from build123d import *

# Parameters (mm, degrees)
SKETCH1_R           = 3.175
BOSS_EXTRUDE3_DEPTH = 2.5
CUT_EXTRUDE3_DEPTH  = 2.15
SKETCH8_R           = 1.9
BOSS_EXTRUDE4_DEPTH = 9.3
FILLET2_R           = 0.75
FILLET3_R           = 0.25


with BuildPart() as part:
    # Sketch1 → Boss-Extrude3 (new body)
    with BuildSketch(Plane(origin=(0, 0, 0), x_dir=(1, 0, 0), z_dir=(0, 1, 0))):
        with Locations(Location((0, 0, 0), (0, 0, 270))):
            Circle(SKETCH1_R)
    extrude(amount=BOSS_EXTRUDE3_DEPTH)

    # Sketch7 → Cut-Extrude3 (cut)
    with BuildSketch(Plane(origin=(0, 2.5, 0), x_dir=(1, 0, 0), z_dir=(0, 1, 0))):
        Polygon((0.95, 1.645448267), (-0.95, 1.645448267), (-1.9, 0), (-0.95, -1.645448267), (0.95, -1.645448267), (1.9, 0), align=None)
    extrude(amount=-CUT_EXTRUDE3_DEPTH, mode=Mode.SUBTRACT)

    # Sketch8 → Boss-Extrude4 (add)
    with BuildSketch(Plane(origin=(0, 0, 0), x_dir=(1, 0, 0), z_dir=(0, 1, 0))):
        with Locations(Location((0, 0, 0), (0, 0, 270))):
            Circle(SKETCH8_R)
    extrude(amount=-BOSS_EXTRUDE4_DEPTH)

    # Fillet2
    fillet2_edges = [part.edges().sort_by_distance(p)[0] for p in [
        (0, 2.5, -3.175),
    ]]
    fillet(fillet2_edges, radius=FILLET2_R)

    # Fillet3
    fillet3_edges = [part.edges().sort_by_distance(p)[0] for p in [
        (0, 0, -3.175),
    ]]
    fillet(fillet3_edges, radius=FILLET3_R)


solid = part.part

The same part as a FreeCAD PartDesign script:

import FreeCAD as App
import Part
import Sketcher
Q = App.Units.Quantity


def edges_at(feature, points):
    """Names of the edges that pass closest to the given points."""
    edges = feature.Shape.Edges
    near = lambda p: min(range(len(edges)), key=lambda i: edges[i].distToShape(Part.Vertex(*p))[0])
    return sorted({f"Edge{near(p) + 1}" for p in points})

doc = App.newDocument("Part")
body = doc.addObject("PartDesign::Body", "Body")

sketch1 = body.newObject("Sketcher::SketchObject", "Sketch")
sketch1.AttachmentSupport = (doc.getObject("XZ_Plane"), [""])
sketch1.MapMode = "FlatFace"
sketch1.addGeometry(Part.Circle(App.Vector(0, 0, 0), App.Vector(0, 0, 1), 3.2), False)
sketch1.addConstraint(Sketcher.Constraint("Coincident", 0, 3, -1, 1))
sketch1.addConstraint(Sketcher.Constraint("Diameter", 0, Q("6.35 mm")))
pad1 = body.newObject("PartDesign::Pad", "Pad")
pad1.Profile = sketch1
pad1.Length = 2.5
pad1.Reversed = True

sketch2 = body.newObject("Sketcher::SketchObject", "Sketch001")
sketch2.AttachmentSupport = (doc.getObject("XZ_Plane"), [""])
sketch2.MapMode = "FlatFace"
sketch2.AttachmentOffset = App.Placement(App.Vector(0, 0, -2.5), App.Rotation())
sketch2.addGeometry(Part.LineSegment(App.Vector(0.9, -1.6, 0), App.Vector(-0.9, -1.6, 0)), False)
sketch2.addGeometry(Part.LineSegment(App.Vector(-0.9, -1.6, 0), App.Vector(-1.9, 0, 0)), False)
sketch2.addGeometry(Part.LineSegment(App.Vector(-1.9, 0, 0), App.Vector(-0.9, 1.6, 0)), False)
sketch2.addGeometry(Part.LineSegment(App.Vector(-0.9, 1.6, 0), App.Vector(0.9, 1.6, 0)), False)
sketch2.addGeometry(Part.LineSegment(App.Vector(0.9, 1.6, 0), App.Vector(1.9, 0, 0)), False)
sketch2.addGeometry(Part.LineSegment(App.Vector(1.9, 0, 0), App.Vector(0.9, -1.6, 0)), False)
sketch2.addConstraint(Sketcher.Constraint("Coincident", 0, 2, 1, 1))
sketch2.addConstraint(Sketcher.Constraint("Coincident", 1, 2, 2, 1))
sketch2.addConstraint(Sketcher.Constraint("Coincident", 2, 2, 3, 1))
sketch2.addConstraint(Sketcher.Constraint("Coincident", 3, 2, 4, 1))
sketch2.addConstraint(Sketcher.Constraint("Coincident", 4, 2, 5, 1))
sketch2.addConstraint(Sketcher.Constraint("Coincident", 5, 2, 0, 1))
sketch2.addConstraint(Sketcher.Constraint("Horizontal", 0))
sketch2.addConstraint(Sketcher.Constraint("Horizontal", 3))
sketch2.addConstraint(Sketcher.Constraint("Symmetric", 0, 2, 3, 2, -1, 1))
sketch2.addConstraint(Sketcher.Constraint("Symmetric", 1, 2, 4, 2, -1, 1))
sketch2.addConstraint(Sketcher.Constraint("PointOnObject", 1, 2, -1))
sketch2.addConstraint(Sketcher.Constraint("Parallel", 2, 5))
sketch2.addConstraint(Sketcher.Constraint("Vertical", 0, 2, 2, 2))
sketch2.addConstraint(Sketcher.Constraint("Angle", 1, Q("120 deg")))
sketch2.addConstraint(Sketcher.Constraint("DistanceX", 0, 2, 0, 1, Q("1.9 mm")))
sketch2.addConstraint(Sketcher.Constraint("Distance", 1, Q("1.9 mm")))
pocket1 = body.newObject("PartDesign::Pocket", "Pocket")
pocket1.Profile = sketch2
pocket1.Length = 2.15
pocket1.Reversed = True

sketch3 = body.newObject("Sketcher::SketchObject", "Sketch002")
sketch3.AttachmentSupport = (doc.getObject("XZ_Plane"), [""])
sketch3.MapMode = "FlatFace"
sketch3.addGeometry(Part.Circle(App.Vector(0, 0, 0), App.Vector(0, 0, 1), 1.9), False)
sketch3.addConstraint(Sketcher.Constraint("Coincident", 0, 3, -1, 1))
sketch3.addConstraint(Sketcher.Constraint("Diameter", 0, Q("3.8 mm")))
pad2 = body.newObject("PartDesign::Pad", "Pad001")
pad2.Profile = sketch3
pad2.Length = 9.3
doc.recompute()

fillet = body.newObject("PartDesign::Fillet", "Fillet")
fillet.Base = (pad2, edges_at(pad2, [(0, 2.5, -3.175)]))
fillet.Radius = 0.75
doc.recompute()

fillet2 = body.newObject("PartDesign::Fillet", "Fillet001")
fillet2.Base = (fillet, edges_at(fillet, [(0, 0, -3.175)]))
fillet2.Radius = 0.25

doc.recompute()
